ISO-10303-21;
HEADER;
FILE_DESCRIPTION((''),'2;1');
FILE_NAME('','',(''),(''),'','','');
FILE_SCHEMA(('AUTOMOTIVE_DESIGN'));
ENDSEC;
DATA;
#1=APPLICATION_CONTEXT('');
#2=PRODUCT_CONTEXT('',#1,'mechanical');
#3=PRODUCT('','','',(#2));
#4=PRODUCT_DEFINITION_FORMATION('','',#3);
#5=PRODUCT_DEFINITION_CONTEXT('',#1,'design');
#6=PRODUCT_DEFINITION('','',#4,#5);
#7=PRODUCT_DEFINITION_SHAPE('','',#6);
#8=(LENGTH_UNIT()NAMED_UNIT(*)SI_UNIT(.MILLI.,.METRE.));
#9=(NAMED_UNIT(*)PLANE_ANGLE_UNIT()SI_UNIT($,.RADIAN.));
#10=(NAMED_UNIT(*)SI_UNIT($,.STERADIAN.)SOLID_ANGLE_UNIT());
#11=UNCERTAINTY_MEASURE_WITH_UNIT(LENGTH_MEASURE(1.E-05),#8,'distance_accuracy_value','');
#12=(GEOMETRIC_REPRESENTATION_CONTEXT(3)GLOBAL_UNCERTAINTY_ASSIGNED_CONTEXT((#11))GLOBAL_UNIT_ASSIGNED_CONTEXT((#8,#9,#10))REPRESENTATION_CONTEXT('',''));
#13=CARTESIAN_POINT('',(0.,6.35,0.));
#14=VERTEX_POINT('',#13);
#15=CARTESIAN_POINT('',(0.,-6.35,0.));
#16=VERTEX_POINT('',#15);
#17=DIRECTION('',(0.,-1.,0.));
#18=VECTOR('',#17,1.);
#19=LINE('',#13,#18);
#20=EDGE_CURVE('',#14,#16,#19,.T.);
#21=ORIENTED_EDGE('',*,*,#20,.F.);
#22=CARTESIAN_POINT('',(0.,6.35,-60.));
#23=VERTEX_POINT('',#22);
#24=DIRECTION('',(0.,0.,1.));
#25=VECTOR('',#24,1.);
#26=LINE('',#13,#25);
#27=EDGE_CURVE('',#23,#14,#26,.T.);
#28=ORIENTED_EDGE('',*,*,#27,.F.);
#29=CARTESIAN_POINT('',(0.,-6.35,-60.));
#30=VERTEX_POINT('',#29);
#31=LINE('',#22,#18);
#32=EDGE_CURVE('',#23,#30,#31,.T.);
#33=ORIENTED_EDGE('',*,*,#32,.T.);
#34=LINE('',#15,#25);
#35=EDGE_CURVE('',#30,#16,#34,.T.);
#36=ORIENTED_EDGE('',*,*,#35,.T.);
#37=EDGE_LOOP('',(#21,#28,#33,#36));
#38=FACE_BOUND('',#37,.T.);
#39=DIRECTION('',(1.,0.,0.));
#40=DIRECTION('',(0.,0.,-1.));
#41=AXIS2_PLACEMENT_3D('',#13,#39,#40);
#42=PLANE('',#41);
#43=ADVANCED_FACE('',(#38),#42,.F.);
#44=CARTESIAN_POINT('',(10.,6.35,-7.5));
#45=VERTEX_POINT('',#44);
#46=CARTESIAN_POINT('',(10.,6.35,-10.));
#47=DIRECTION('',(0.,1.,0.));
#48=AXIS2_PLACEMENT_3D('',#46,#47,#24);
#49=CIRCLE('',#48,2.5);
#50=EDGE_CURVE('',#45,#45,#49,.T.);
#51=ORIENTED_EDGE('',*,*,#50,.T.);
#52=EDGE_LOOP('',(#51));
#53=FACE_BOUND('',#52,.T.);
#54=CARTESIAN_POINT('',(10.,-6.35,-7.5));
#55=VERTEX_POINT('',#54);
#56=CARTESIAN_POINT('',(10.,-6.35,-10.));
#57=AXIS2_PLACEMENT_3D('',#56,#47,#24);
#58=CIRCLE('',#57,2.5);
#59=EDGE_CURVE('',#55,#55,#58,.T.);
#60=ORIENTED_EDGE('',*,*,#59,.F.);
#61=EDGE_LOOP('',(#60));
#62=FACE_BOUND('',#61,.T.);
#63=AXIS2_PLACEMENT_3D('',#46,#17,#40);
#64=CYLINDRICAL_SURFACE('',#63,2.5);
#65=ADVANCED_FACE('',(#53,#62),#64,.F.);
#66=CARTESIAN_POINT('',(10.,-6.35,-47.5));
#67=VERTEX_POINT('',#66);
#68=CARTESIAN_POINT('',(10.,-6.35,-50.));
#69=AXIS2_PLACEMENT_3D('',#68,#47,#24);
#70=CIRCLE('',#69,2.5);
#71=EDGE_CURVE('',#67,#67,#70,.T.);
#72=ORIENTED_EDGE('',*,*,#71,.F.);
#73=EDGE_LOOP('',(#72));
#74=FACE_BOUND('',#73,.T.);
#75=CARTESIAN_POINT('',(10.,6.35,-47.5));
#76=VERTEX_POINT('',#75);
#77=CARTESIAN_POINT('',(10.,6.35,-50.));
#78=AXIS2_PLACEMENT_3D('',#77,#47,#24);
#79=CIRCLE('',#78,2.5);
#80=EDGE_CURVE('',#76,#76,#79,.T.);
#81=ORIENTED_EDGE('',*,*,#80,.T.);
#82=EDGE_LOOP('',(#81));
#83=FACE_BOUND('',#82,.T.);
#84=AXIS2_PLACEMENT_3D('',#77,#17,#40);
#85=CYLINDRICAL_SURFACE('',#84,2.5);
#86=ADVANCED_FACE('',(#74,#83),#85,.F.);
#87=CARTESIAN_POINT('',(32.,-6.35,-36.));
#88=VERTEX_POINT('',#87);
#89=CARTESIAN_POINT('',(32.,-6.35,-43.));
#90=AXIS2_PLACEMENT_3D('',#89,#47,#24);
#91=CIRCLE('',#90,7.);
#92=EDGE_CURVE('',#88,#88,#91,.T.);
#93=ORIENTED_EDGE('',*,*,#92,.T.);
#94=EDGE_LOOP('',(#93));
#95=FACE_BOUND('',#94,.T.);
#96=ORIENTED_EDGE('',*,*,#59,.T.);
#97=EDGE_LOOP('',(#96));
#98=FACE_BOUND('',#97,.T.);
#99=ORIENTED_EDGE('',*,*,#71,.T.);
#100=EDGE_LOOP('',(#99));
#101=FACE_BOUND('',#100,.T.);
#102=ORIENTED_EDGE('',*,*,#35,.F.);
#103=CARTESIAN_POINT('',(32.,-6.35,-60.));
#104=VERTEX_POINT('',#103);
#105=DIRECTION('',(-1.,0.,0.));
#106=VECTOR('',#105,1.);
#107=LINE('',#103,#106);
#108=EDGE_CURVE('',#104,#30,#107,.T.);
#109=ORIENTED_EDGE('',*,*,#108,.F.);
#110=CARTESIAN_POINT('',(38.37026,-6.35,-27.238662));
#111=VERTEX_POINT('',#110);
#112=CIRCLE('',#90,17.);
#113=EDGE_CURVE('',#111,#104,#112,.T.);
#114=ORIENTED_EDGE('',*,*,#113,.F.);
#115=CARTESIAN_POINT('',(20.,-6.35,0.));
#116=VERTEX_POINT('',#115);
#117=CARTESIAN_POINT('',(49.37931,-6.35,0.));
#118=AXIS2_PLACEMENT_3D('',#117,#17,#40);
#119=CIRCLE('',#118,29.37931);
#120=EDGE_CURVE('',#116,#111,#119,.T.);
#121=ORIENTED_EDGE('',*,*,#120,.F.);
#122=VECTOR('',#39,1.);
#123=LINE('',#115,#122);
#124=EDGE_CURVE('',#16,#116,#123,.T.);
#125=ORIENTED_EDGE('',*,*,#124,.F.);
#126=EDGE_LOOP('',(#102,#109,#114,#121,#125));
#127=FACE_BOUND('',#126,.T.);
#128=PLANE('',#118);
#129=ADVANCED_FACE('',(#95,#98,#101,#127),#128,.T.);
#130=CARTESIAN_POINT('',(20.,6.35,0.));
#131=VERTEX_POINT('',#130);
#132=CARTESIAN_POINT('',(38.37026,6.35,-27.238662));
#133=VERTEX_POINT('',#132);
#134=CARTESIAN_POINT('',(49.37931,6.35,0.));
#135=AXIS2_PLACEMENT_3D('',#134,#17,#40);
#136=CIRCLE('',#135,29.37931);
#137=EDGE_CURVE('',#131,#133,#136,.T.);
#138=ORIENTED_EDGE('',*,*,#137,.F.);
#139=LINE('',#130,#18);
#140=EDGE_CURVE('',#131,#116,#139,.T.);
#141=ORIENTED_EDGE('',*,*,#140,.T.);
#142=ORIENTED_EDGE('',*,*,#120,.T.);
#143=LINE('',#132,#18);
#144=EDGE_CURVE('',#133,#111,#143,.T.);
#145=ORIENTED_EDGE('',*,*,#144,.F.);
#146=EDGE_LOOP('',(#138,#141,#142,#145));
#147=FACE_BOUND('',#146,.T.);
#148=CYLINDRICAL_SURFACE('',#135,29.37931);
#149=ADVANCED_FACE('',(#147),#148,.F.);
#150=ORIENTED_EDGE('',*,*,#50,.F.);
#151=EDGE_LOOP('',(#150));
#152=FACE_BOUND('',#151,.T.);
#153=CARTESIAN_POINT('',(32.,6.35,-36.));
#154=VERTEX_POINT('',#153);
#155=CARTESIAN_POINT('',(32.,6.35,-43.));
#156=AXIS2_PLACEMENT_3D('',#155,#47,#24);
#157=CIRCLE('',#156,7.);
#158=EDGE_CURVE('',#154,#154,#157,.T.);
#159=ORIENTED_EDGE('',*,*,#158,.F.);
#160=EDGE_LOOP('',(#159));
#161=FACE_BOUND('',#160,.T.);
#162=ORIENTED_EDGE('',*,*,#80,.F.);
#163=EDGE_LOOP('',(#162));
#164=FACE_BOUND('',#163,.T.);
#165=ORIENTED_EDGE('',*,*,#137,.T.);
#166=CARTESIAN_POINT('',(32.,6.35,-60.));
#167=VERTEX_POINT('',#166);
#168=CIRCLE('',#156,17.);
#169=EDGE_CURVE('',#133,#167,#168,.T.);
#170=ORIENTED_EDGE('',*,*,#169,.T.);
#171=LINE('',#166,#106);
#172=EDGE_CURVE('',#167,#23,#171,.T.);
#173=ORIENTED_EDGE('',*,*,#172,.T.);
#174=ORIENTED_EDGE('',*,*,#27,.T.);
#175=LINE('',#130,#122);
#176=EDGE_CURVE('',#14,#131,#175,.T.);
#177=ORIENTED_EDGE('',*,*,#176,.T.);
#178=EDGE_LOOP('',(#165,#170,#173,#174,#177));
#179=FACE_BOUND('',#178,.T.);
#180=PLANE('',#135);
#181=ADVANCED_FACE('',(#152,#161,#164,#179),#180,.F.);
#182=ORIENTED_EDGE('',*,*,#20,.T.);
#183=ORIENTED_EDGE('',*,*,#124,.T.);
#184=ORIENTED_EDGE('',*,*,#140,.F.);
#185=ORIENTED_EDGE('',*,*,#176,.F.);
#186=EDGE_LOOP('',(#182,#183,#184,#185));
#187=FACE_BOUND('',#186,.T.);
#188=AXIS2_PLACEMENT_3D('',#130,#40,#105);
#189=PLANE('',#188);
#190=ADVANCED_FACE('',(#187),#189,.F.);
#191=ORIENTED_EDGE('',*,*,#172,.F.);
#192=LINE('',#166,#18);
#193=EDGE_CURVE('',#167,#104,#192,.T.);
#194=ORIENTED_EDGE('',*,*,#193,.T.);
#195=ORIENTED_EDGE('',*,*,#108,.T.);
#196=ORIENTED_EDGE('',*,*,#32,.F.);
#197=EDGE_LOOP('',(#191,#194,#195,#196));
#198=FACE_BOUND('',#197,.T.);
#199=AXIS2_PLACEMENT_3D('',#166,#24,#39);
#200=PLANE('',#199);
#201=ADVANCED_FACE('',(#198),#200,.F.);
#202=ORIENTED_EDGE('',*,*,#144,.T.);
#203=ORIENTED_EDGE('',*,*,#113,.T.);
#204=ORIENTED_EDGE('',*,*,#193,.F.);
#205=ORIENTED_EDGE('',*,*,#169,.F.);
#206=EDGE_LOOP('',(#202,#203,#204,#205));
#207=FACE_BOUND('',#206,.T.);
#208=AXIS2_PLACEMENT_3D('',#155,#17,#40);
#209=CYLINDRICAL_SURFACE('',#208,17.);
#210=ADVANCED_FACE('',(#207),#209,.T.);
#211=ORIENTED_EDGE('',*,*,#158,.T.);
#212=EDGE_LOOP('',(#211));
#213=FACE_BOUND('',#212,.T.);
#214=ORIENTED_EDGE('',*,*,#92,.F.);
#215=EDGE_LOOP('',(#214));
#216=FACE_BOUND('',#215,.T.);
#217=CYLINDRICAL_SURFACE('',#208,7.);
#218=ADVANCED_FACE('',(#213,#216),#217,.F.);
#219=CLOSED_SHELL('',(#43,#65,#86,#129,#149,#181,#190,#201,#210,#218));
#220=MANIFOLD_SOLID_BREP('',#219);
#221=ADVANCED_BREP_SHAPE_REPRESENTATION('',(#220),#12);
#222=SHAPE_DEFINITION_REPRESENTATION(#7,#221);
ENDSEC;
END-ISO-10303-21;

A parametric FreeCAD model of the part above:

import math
import FreeCAD as App
import Part
import Sketcher
from FreeCAD import Vector
Q = App.Units.Quantity

doc = App.newDocument("Part")
body = doc.addObject("PartDesign::Body", "Body")

sketch1 = doc.addObject("Sketcher::SketchObject", "Sketch")
body.addObject(sketch1)
sketch1.AttachmentSupport = (doc.XZ_Plane, [""])
sketch1.MapMode = "FlatFace"
sketch1.addGeometry([
    Part.LineSegment(Vector(0, 0, 0), Vector(20, 0, 0)),
    Part.ArcOfCircle(Part.Circle(Vector(49.4, 0, 0), Vector(0, 0, 1), 29.4), math.radians(-180), math.radians(-112)),
    Part.ArcOfCircle(Part.Circle(Vector(32, -43, 0), Vector(0, 0, 1), 17), math.radians(-90), math.radians(68)),
    Part.LineSegment(Vector(32, -60, 0), Vector(0, -60, 0)),
    Part.LineSegment(Vector(0, -60, 0), Vector(0, 0, 0)),
    Part.Circle(Vector(10, -10, 0), Vector(0, 0, 1), 2.5),
    Part.Circle(Vector(32, -43, 0), Vector(0, 0, 1), 7),
    Part.Circle(Vector(10, -50, 0), Vector(0, 0, 1), 2.5),
], False)
sketch1.addConstraint([
    Sketcher.Constraint("Coincident", 0, 2, 1, 1),
    Sketcher.Constraint("Tangent", 1, 2, 2, 2),
    Sketcher.Constraint("Tangent", 2, 1, 3, 1),
    Sketcher.Constraint("Coincident", 3, 2, 4, 1),
    Sketcher.Constraint("Coincident", 4, 2, 0, 1),
    Sketcher.Constraint("Horizontal", 0),
    Sketcher.Constraint("Horizontal", 3),
    Sketcher.Constraint("Vertical", 4),
    Sketcher.Constraint("Coincident", 4, 2, -1, 1),
    Sketcher.Constraint("Coincident", 6, 3, 2, 3),
    Sketcher.Constraint("Equal", 5, 7),
    Sketcher.Constraint("PointOnObject", 1, 3, -1),
    Sketcher.Constraint("Vertical", 5, 3, 7, 3),
    Sketcher.Constraint("Diameter", 5, Q("5 mm")),
    Sketcher.Constraint("Diameter", 6, Q("14 mm")),
    Sketcher.Constraint("Radius", 2, Q("17 mm")),
    Sketcher.Constraint("DistanceX", 0, 1, 0, 2, Q("20 mm")),
    Sketcher.Constraint("DistanceX", 3, 2, 3, 1, Q("32 mm")),
    Sketcher.Constraint("DistanceY", 4, 1, 4, 2, Q("60 mm")),
    Sketcher.Constraint("DistanceX", -1, 1, 5, 3, Q("10 mm")),
    Sketcher.Constraint("DistanceY", 5, 3, -1, 1, Q("10 mm")),
    Sketcher.Constraint("DistanceY", 7, 3, -1, 1, Q("50 mm")),
])
pad1 = doc.addObject("PartDesign::Pad", "Pad")
body.addObject(pad1)
pad1.Profile = sketch1
pad1.Length = 12.7
pad1.Midplane = True

doc.recompute()
